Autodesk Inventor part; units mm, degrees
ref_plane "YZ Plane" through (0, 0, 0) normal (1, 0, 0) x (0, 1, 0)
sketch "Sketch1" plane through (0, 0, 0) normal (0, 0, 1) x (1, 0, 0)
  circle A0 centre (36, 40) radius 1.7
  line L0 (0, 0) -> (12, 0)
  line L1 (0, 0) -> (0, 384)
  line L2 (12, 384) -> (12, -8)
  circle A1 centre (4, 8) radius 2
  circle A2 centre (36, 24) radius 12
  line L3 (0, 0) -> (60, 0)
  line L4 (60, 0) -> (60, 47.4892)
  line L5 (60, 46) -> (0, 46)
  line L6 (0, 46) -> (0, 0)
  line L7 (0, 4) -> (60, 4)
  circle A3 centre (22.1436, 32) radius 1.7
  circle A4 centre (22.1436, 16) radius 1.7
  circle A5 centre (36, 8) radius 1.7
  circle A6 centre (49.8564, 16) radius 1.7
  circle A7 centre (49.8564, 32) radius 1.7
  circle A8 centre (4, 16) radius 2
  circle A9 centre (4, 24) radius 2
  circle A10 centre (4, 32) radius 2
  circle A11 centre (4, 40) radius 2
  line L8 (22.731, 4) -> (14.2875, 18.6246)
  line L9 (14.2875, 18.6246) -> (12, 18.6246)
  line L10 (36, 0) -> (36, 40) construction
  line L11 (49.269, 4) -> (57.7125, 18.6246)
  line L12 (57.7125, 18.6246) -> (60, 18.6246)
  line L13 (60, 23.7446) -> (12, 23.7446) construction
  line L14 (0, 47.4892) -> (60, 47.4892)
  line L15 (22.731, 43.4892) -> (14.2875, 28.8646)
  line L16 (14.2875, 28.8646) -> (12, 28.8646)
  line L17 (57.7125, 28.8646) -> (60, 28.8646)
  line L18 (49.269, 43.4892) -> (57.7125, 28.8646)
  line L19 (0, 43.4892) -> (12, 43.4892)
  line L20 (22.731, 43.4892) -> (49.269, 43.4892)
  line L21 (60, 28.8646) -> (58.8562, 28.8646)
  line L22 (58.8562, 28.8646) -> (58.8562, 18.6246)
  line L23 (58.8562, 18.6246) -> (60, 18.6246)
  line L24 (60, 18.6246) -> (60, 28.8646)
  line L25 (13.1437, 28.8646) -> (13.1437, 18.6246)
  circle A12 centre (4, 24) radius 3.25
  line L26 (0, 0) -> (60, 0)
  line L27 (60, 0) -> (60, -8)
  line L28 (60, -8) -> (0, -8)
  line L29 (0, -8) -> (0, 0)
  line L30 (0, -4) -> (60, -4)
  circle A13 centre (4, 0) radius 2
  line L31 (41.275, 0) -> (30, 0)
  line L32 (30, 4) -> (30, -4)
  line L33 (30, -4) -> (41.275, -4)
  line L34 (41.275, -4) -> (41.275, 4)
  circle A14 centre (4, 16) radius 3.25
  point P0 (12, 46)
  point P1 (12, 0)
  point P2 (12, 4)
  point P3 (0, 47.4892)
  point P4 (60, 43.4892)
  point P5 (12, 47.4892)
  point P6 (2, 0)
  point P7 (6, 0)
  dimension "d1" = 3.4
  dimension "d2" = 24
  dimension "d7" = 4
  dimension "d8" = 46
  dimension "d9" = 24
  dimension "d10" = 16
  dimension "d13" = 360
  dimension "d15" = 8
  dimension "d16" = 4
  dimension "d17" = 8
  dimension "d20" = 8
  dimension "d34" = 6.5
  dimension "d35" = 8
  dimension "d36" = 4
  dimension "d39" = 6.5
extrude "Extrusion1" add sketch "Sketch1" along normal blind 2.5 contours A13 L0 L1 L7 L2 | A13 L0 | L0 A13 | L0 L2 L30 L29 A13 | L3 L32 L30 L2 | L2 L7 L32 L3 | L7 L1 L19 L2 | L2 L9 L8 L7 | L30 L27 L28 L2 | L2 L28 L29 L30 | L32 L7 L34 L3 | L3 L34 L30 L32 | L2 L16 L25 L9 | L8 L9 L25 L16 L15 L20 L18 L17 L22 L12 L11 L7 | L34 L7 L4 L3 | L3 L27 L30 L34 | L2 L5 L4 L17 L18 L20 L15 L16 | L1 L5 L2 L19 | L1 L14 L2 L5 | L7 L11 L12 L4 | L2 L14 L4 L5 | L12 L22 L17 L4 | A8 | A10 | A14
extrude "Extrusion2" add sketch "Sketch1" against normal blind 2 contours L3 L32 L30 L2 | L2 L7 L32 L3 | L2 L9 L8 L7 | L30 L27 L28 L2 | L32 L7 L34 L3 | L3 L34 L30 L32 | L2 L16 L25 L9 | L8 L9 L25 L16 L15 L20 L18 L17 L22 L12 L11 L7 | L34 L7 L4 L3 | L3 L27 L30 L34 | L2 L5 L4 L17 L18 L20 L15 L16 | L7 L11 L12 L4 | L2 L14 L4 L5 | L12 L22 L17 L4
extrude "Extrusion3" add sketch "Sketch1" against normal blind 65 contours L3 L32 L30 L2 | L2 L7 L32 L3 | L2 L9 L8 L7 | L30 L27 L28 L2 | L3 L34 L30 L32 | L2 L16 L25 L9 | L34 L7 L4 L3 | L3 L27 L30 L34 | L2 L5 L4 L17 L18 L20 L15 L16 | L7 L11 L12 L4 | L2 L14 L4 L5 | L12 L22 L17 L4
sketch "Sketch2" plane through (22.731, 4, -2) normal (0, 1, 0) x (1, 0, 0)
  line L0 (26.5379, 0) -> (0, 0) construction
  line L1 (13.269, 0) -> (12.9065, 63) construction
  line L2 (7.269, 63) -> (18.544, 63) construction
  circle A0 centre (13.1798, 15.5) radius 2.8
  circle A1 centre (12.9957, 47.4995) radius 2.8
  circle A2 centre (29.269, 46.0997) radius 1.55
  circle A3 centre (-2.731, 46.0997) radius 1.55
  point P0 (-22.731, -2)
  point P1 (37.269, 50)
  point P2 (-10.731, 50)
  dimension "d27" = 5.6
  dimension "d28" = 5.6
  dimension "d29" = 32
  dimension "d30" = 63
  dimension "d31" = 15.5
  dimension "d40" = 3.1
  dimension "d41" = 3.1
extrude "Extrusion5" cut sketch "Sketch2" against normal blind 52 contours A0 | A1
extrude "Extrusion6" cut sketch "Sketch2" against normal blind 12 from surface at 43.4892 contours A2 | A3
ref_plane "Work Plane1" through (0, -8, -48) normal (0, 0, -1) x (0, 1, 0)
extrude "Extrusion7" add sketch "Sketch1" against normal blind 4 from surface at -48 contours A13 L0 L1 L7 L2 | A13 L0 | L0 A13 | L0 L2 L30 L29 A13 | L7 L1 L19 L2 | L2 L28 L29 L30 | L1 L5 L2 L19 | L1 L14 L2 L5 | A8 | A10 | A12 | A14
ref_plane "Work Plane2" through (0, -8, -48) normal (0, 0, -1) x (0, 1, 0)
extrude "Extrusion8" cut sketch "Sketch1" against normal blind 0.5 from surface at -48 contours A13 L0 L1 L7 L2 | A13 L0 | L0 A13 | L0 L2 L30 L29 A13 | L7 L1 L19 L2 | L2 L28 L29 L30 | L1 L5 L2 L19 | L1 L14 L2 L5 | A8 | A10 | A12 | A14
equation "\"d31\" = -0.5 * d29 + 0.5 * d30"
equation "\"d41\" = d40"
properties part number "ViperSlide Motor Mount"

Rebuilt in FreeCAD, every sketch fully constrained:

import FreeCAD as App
import Part
import Sketcher
from FreeCAD import Vector
Q = App.Units.Quantity


def add_polygon(sketch, points):
    """Adds a closed chain of lines whose ends are joined by coincident constraints."""
    first, n = sketch.GeometryCount, len(points)
    for a, b in zip(points, points[1:] + points[:1]):
        sketch.addGeometry(Part.LineSegment(App.Vector(*a, 0), App.Vector(*b, 0)), False)
    for i in range(n):
        sketch.addConstraint(Sketcher.Constraint("Coincident", first + i, 2, first + (i + 1) % n, 1))

doc = App.newDocument("Part")
params = doc.addObject("Spreadsheet::Sheet", "Params")
for row, (alias, value) in enumerate([
    ("sketch1_diameter", "4 mm"),
    ("sketch1_diameter2", "24 mm"),
    ("sketch1_diameter3", "6.5 mm"),
    ("sketch1_diameter4", "3.4 mm"),
    ("sketch1_width", "60 mm"),
    ("pad1_length", "2.5 mm"),
    ("sketch2_diameter", "24 mm"),
    ("sketch2_diameter2", "3.4 mm"),
    ("pad2_length", "2 mm"),
    ("sketch3_height", "4 mm"),
    ("sketch3_width", "48 mm"),
    ("sketch3_height2", "10.24 mm"),
    ("pad3_length", "65 mm"),
    ("sketch4_diameter", "5.6 mm"),
    ("pocket1_length", "52 mm"),
    ("sketch5_diameter", "3.1 mm"),
    ("pocket2_length", "12 mm"),
    ("sketch6_diameter", "4 mm"),
    ("pad4_length", "4 mm"),
    ("sketch7_diameter", "4 mm"),
    ("pocket3_length", "0.5 mm"),
], start=1):
    params.set(f"A{row}", alias)
    params.set(f"B{row}", "=" + value)
    params.setAlias(f"B{row}", alias)

body = doc.addObject("PartDesign::Body", "Body")

sketch1 = body.newObject("Sketcher::SketchObject", "Sketch")
sketch1.AttachmentSupport = (doc.getObject("XY_Plane"), [""])
sketch1.MapMode = "FlatFace"
add_polygon(sketch1, [(0, -8), (60, -8), (60, 47.5), (0, 47.5)])
sketch1.addGeometry(Part.Circle(Vector(4, 40, 0), Vector(0, 0, 1), 2), False)
sketch1.addGeometry(Part.Circle(Vector(4, 8, 0), Vector(0, 0, 1), 2), False)
sketch1.addGeometry(Part.Circle(Vector(4, 24, 0), Vector(0, 0, 1), 3.2), False)
sketch1.addGeometry(Part.Circle(Vector(36, 40, 0), Vector(0, 0, 1), 1.7), False)
sketch1.addGeometry(Part.Circle(Vector(22.1, 16, 0), Vector(0, 0, 1), 1.7), False)
sketch1.addGeometry(Part.Circle(Vector(49.9, 32, 0), Vector(0, 0, 1), 1.7), False)
sketch1.addGeometry(Part.Circle(Vector(36, 8, 0), Vector(0, 0, 1), 1.7), False)
sketch1.addGeometry(Part.Circle(Vector(49.9, 16, 0), Vector(0, 0, 1), 1.7), False)
sketch1.addGeometry(Part.Circle(Vector(22.1, 32, 0), Vector(0, 0, 1), 1.7), False)
sketch1.addGeometry(Part.Circle(Vector(36, 24, 0), Vector(0, 0, 1), 12), False)
sketch1.addConstraint([
    Sketcher.Constraint("Horizontal", 0),
    Sketcher.Constraint("Vertical", 1),
    Sketcher.Constraint("Horizontal", 2),
    Sketcher.Constraint("Vertical", 3),
    Sketcher.Constraint("Equal", 4, 5),
    Sketcher.Constraint("Equal", 7, 8),
    Sketcher.Constraint("Equal", 8, 9),
    Sketcher.Constraint("Equal", 9, 10),
    Sketcher.Constraint("Equal", 10, 11),
    Sketcher.Constraint("Equal", 11, 12),
    Sketcher.Constraint("PointOnObject", 2, 2, -2),
    Sketcher.Constraint("Horizontal", 4, 3, 7, 3),
    Sketcher.Constraint("Horizontal", 5, 3, 10, 3),
    Sketcher.Constraint("Horizontal", 8, 3, 11, 3),
    Sketcher.Constraint("Horizontal", 9, 3, 12, 3),
    Sketcher.Constraint("Horizontal", 6, 3, 13, 3),
    Sketcher.Constraint("Vertical", 4, 3, 5, 3),
    Sketcher.Constraint("Vertical", 5, 3, 6, 3),
    Sketcher.Constraint("Vertical", 7, 3, 10, 3),
    Sketcher.Constraint("Vertical", 9, 3, 11, 3),
    Sketcher.Constraint("Vertical", 8, 3, 12, 3),
    Sketcher.Constraint("Vertical", 10, 3, 13, 3),
    Sketcher.Constraint("Diameter", 4, 4.0),
    Sketcher.Constraint("Diameter", 13, 24.0),
    Sketcher.Constraint("Diameter", 6, 6.5),
    Sketcher.Constraint("Diameter", 7, 3.4),
    Sketcher.Constraint("DistanceX", -1, 1, 4, 3, 4.0),
    Sketcher.Constraint("DistanceY", -1, 1, 5, 3, 8.0),
    Sketcher.Constraint("DistanceY", -1, 1, 6, 3, 24.0),
    Sketcher.Constraint("DistanceY", -1, 1, 8, 3, 16.0),
    Sketcher.Constraint("DistanceY", 0, 2, -1, 1, 8.0),
    Sketcher.Constraint("DistanceY", 6, 3, 4, 3, 16.0),
    Sketcher.Constraint("DistanceY", 9, 3, 7, 3, 8.0),
    Sketcher.Constraint("DistanceX", 10, 3, 0, 2, 24.0),
    Sketcher.Constraint("DistanceX", 0, 1, 0, 2, 60.0),
    Sketcher.Constraint("DistanceY", 1, 1, 1, 2, 55.4892),
    Sketcher.Constraint("DistanceX", -1, 1, 8, 3, 22.1436),
    Sketcher.Constraint("DistanceX", -1, 1, 9, 3, 49.8564),
])
sketch1.setExpression("Constraints[26]", "Params.sketch1_diameter")
sketch1.setExpression("Constraints[27]", "Params.sketch1_diameter2")
sketch1.setExpression("Constraints[28]", "Params.sketch1_diameter3")
sketch1.setExpression("Constraints[29]", "Params.sketch1_diameter4")
sketch1.setExpression("Constraints[38]", "Params.sketch1_width")
pad1 = body.newObject("PartDesign::Pad", "Pad")
pad1.Profile = sketch1
pad1.setExpression("Length", "Params.pad1_length")

sketch2 = body.newObject("Sketcher::SketchObject", "Sketch001")
sketch2.AttachmentSupport = (doc.getObject("XY_Plane"), [""])
sketch2.MapMode = "FlatFace"
add_polygon(sketch2, [(12, -8), (60, -8), (60, 47.5), (12, 47.5)])
sketch2.addGeometry(Part.Circle(Vector(36, 24, 0), Vector(0, 0, 1), 12), False)
sketch2.addGeometry(Part.Circle(Vector(49.9, 32, 0), Vector(0, 0, 1), 1.7), False)
sketch2.addGeometry(Part.Circle(Vector(36, 40, 0), Vector(0, 0, 1), 1.7), False)
sketch2.addGeometry(Part.Circle(Vector(22.1, 16, 0), Vector(0, 0, 1), 1.7), False)
sketch2.addGeometry(Part.Circle(Vector(36, 8, 0), Vector(0, 0, 1), 1.7), False)
sketch2.addGeometry(Part.Circle(Vector(49.9, 16, 0), Vector(0, 0, 1), 1.7), False)
sketch2.addGeometry(Part.Circle(Vector(22.1, 32, 0), Vector(0, 0, 1), 1.7), False)
sketch2.addConstraint([
    Sketcher.Constraint("Horizontal", 0),
    Sketcher.Constraint("Vertical", 1),
    Sketcher.Constraint("Horizontal", 2),
    Sketcher.Constraint("Vertical", 3),
    Sketcher.Constraint("Equal", 5, 6),
    Sketcher.Constraint("Equal", 6, 7),
    Sketcher.Constraint("Equal", 7, 8),
    Sketcher.Constraint("Equal", 8, 9),
    Sketcher.Constraint("Equal", 9, 10),
    Sketcher.Constraint("Horizontal", 7, 3, 9, 3),
    Sketcher.Constraint("Horizontal", 5, 3, 10, 3),
    Sketcher.Constraint("Vertical", 4, 3, 6, 3),
    Sketcher.Constraint("Vertical", 6, 3, 8, 3),
    Sketcher.Constraint("Vertical", 5, 3, 9, 3),
    Sketcher.Constraint("Vertical", 7, 3, 10, 3),
    Sketcher.Constraint("Diameter", 4, 24.0),
    Sketcher.Constraint("Diameter", 5, 3.4),
    Sketcher.Constraint("DistanceY", -1, 1, 4, 3, 24.0),
    Sketcher.Constraint("DistanceY", -1, 1, 7, 3, 16.0),
    Sketcher.Constraint("DistanceY", -1, 1, 8, 3, 8.0),
    Sketcher.Constraint("DistanceY", 0, 2, -1, 1, 8.0),
    Sketcher.Constraint("DistanceY", 4, 3, 5, 3, 8.0),
    Sketcher.Constraint("DistanceY", 5, 3, 6, 3, 8.0),
    Sketcher.Constraint("DistanceX", 8, 3, 0, 2, 24.0),
    Sketcher.Constraint("DistanceX", 2, 2, 6, 3, 24.0),
    Sketcher.Constraint("DistanceX", -1, 1, 4, 3, 36.0),
    Sketcher.Constraint("DistanceY", 1, 1, 1, 2, 55.4892),
    Sketcher.Constraint("DistanceX", -1, 1, 5, 3, 49.8564),
    Sketcher.Constraint("DistanceX", -1, 1, 7, 3, 22.1436),
])
sketch2.setExpression("Constraints[19]", "Params.sketch2_diameter")
sketch2.setExpression("Constraints[20]", "Params.sketch2_diameter2")
pad2 = body.newObject("PartDesign::Pad", "Pad001")
pad2.Profile = sketch2
pad2.setExpression("Length", "Params.pad2_length")
pad2.Reversed = True

sketch3 = body.newObject("Sketcher::SketchObject", "Sketch002")
sketch3.AttachmentSupport = (doc.getObject("XY_Plane"), [""])
sketch3.MapMode = "FlatFace"
add_polygon(sketch3, [(12, -8), (60, -8), (60, 47.5), (12, 47.5)])
add_polygon(sketch3, [(30, 4), (22.7, 4), (14.3, 18.6), (13.1, 18.6), (13.1, 28.9), (14.3, 28.9), (22.7, 43.5), (49.3, 43.5), (57.7, 28.9), (58.9, 28.9), (58.9, 18.6), (57.7, 18.6), (49.3, 4), (41.3, 4), (41.3, 0), (30, 0)])
sketch3.addConstraint([
    Sketcher.Constraint("Horizontal", 0),
    Sketcher.Constraint("Vertical", 1),
    Sketcher.Constraint("Horizontal", 2),
    Sketcher.Constraint("Vertical", 3),
    Sketcher.Constraint("Horizontal", 4),
    Sketcher.Constraint("Horizontal", 6),
    Sketcher.Constraint("Vertical", 7),
    Sketcher.Constraint("Horizontal", 8),
    Sketcher.Constraint("Horizontal", 10),
    Sketcher.Constraint("Horizontal", 12),
    Sketcher.Constraint("Vertical", 13),
    Sketcher.Constraint("Horizontal", 14),
    Sketcher.Constraint("Horizontal", 16),
    Sketcher.Constraint("Vertical", 17),
    Sketcher.Constraint("Horizontal", 18),
    Sketcher.Constraint("Vertical", 19),
    Sketcher.Constraint("PointOnObject", 17, 2, -1),
    Sketcher.Constraint("Parallel", 5, 11),
    Sketcher.Constraint("Parallel", 9, 15),
    Sketcher.Constraint("Horizontal", 8, 2, 11, 2),
    Sketcher.Constraint("Horizontal", 6, 2, 13, 2),
    Sketcher.Constraint("Horizontal", 4, 2, 15, 2),
    Sketcher.Constraint("Vertical", 5, 2, 8, 2),
    Sketcher.Constraint("Vertical", 4, 2, 9, 2),
    Sketcher.Constraint("Vertical", 11, 2, 14, 2),
    Sketcher.Constraint("Vertical", 10, 2, 15, 2),
    Sketcher.Constraint("Equal", 8, 12),
    Sketcher.Constraint("DistanceY", 17, 2, 17, 1, 4.0),
    Sketcher.Constraint("DistanceY", 0, 2, -1, 1, 8.0),
    Sketcher.Constraint("DistanceY", 9, 2, 2, 2, 4.0),
    Sketcher.Constraint("DistanceX", 0, 1, 0, 2, 48.0),
    Sketcher.Constraint("Angle", 5, Q("120 deg")),
    Sketcher.Constraint("DistanceX", -1, 1, 0, 2, 60.0),
    Sketcher.Constraint("DistanceX", -1, 1, 18, 2, 30.0),
    Sketcher.Constraint("DistanceY", 7, 1, 7, 2, 10.24),
    Sketcher.Constraint("DistanceX", 4, 2, 4, 1, 7.269),
    Sketcher.Constraint("DistanceX", 10, 1, 10, 2, 26.538),
    Sketcher.Constraint("DistanceX", 16, 2, 16, 1, 7.994),
    Sketcher.Constraint("Distance", 5, 16.887),
    Sketcher.Constraint("DistanceX", 6, 2, 6, 1, 1.1438),
])
sketch3.setExpression("Constraints[47]", "Params.sketch3_height")
sketch3.setExpression("Constraints[50]", "Params.sketch3_width")
sketch3.setExpression("Constraints[54]", "Params.sketch3_height2")
pad3 = body.newObject("PartDesign::Pad", "Pad002")
pad3.Profile = sketch3
pad3.setExpression("Length", "Params.pad3_length")
pad3.Reversed = True

sketch4 = body.newObject("Sketcher::SketchObject", "Sketch003")
sketch4.AttachmentSupport = (doc.getObject("XZ_Plane"), [""])
sketch4.MapMode = "FlatFace"
sketch4.AttachmentOffset = App.Placement(Vector(0, 0, -4), App.Rotation())
sketch4.addGeometry([
    Part.Circle(Vector(35.9, -17.5, 0), Vector(0, 0, 1), 2.8),
    Part.Circle(Vector(35.7, -49.5, 0), Vector(0, 0, 1), 2.8),
], False)
sketch4.addConstraint([
    Sketcher.Constraint("Equal", 0, 1),
    Sketcher.Constraint("Diameter", 0, 5.6),
    Sketcher.Constraint("DistanceY", 0, 3, -1, 1, 17.5),
    Sketcher.Constraint("DistanceY", 1, 3, 0, 3, 31.9995),
    Sketcher.Constraint("DistanceX", 1, 3, 0, 3, 0.184),
    Sketcher.Constraint("DistanceX", -1, 1, 0, 3, 35.9108),
])
sketch4.setExpression("Constraints[1]", "Params.sketch4_diameter")
pocket1 = body.newObject("PartDesign::Pocket", "Pocket")
pocket1.Profile = sketch4
pocket1.setExpression("Length", "Params.pocket1_length")
pocket1.Reversed = True

sketch5 = body.newObject("Sketcher::SketchObject", "Sketch004")
sketch5.AttachmentSupport = (doc.getObject("XZ_Plane"), [""])
sketch5.MapMode = "FlatFace"
sketch5.AttachmentOffset = App.Placement(Vector(0, 0, -47.4892), App.Rotation())
sketch5.addGeometry([
    Part.Circle(Vector(52, -48.1, 0), Vector(0, 0, 1), 1.6),
    Part.Circle(Vector(20, -48.1, 0), Vector(0, 0, 1), 1.6),
], False)
sketch5.addConstraint([
    Sketcher.Constraint("Equal", 0, 1),
    Sketcher.Constraint("Horizontal", 0, 3, 1, 3),
    Sketcher.Constraint("Diameter", 0, 3.1),
    Sketcher.Constraint("DistanceX", 1, 3, 0, 3, 32.0),
    Sketcher.Constraint("DistanceX", -1, 1, 0, 3, 52.0),
    Sketcher.Constraint("DistanceY", 0, 3, -1, 1, 48.0997),
])
sketch5.setExpression("Constraints[2]", "Params.sketch5_diameter")
pocket2 = body.newObject("PartDesign::Pocket", "Pocket001")
pocket2.Profile = sketch5
pocket2.setExpression("Length", "Params.pocket2_length")
pocket2.Reversed = True

sketch6 = body.newObject("Sketcher::SketchObject", "Sketch005")
sketch6.AttachmentSupport = (doc.getObject("XY_Plane"), [""])
sketch6.MapMode = "FlatFace"
sketch6.AttachmentOffset = App.Placement(Vector(0, 0, -48), App.Rotation())
add_polygon(sketch6, [(0, -8), (12, -8), (12, 47.5), (0, 47.5)])
sketch6.addGeometry(Part.Circle(Vector(4, 40, 0), Vector(0, 0, 1), 2), False)
sketch6.addGeometry(Part.Circle(Vector(4, 8, 0), Vector(0, 0, 1), 2), False)
sketch6.addGeometry(Part.Circle(Vector(4, 24, 0), Vector(0, 0, 1), 2), False)
sketch6.addConstraint([
    Sketcher.Constraint("Horizontal", 0),
    Sketcher.Constraint("Vertical", 1),
    Sketcher.Constraint("Horizontal", 2),
    Sketcher.Constraint("Vertical", 3),
    Sketcher.Constraint("Equal", 4, 5),
    Sketcher.Constraint("Equal", 5, 6),
    Sketcher.Constraint("PointOnObject", 2, 2, -2),
    Sketcher.Constraint("Vertical", 4, 3, 5, 3),
    Sketcher.Constraint("Vertical", 5, 3, 6, 3),
    Sketcher.Constraint("Diameter", 4, 4.0),
    Sketcher.Constraint("DistanceX", -1, 1, 4, 3, 4.0),
    Sketcher.Constraint("DistanceY", -1, 1, 5, 3, 8.0),
    Sketcher.Constraint("DistanceY", -1, 1, 6, 3, 24.0),
    Sketcher.Constraint("DistanceY", 0, 2, -1, 1, 8.0),
    Sketcher.Constraint("DistanceY", 6, 3, 4, 3, 16.0),
    Sketcher.Constraint("DistanceX", 5, 3, 0, 2, 8.0),
    Sketcher.Constraint("DistanceY", 1, 1, 1, 2, 55.4892),
])
sketch6.setExpression("Constraints[13]", "Params.sketch6_diameter")
pad4 = body.newObject("PartDesign::Pad", "Pad003")
pad4.Profile = sketch6
pad4.setExpression("Length", "Params.pad4_length")
pad4.Reversed = True

sketch7 = body.newObject("Sketcher::SketchObject", "Sketch006")
sketch7.AttachmentSupport = (doc.getObject("XY_Plane"), [""])
sketch7.MapMode = "FlatFace"
sketch7.AttachmentOffset = App.Placement(Vector(0, 0, -48), App.Rotation())
add_polygon(sketch7, [(0, -8), (12, -8), (12, 47.5), (0, 47.5)])
sketch7.addGeometry(Part.Circle(Vector(4, 40, 0), Vector(0, 0, 1), 2), False)
sketch7.addGeometry(Part.Circle(Vector(4, 8, 0), Vector(0, 0, 1), 2), False)
sketch7.addGeometry(Part.Circle(Vector(4, 24, 0), Vector(0, 0, 1), 2), False)
sketch7.addConstraint([
    Sketcher.Constraint("Horizontal", 0),
    Sketcher.Constraint("Vertical", 1),
    Sketcher.Constraint("Horizontal", 2),
    Sketcher.Constraint("Vertical", 3),
    Sketcher.Constraint("Equal", 4, 5),
    Sketcher.Constraint("Equal", 5, 6),
    Sketcher.Constraint("PointOnObject", 2, 2, -2),
    Sketcher.Constraint("Vertical", 4, 3, 5, 3),
    Sketcher.Constraint("Vertical", 5, 3, 6, 3),
    Sketcher.Constraint("Diameter", 4, 4.0),
    Sketcher.Constraint("DistanceX", -1, 1, 4, 3, 4.0),
    Sketcher.Constraint("DistanceY", -1, 1, 5, 3, 8.0),
    Sketcher.Constraint("DistanceY", -1, 1, 6, 3, 24.0),
    Sketcher.Constraint("DistanceY", 0, 2, -1, 1, 8.0),
    Sketcher.Constraint("DistanceY", 6, 3, 4, 3, 16.0),
    Sketcher.Constraint("DistanceX", 5, 3, 0, 2, 8.0),
    Sketcher.Constraint("DistanceY", 1, 1, 1, 2, 55.4892),
])
sketch7.setExpression("Constraints[13]", "Params.sketch7_diameter")
pocket3 = body.newObject("PartDesign::Pocket", "Pocket002")
pocket3.Profile = sketch7
pocket3.setExpression("Length", "Params.pocket3_length")

doc.recompute()
